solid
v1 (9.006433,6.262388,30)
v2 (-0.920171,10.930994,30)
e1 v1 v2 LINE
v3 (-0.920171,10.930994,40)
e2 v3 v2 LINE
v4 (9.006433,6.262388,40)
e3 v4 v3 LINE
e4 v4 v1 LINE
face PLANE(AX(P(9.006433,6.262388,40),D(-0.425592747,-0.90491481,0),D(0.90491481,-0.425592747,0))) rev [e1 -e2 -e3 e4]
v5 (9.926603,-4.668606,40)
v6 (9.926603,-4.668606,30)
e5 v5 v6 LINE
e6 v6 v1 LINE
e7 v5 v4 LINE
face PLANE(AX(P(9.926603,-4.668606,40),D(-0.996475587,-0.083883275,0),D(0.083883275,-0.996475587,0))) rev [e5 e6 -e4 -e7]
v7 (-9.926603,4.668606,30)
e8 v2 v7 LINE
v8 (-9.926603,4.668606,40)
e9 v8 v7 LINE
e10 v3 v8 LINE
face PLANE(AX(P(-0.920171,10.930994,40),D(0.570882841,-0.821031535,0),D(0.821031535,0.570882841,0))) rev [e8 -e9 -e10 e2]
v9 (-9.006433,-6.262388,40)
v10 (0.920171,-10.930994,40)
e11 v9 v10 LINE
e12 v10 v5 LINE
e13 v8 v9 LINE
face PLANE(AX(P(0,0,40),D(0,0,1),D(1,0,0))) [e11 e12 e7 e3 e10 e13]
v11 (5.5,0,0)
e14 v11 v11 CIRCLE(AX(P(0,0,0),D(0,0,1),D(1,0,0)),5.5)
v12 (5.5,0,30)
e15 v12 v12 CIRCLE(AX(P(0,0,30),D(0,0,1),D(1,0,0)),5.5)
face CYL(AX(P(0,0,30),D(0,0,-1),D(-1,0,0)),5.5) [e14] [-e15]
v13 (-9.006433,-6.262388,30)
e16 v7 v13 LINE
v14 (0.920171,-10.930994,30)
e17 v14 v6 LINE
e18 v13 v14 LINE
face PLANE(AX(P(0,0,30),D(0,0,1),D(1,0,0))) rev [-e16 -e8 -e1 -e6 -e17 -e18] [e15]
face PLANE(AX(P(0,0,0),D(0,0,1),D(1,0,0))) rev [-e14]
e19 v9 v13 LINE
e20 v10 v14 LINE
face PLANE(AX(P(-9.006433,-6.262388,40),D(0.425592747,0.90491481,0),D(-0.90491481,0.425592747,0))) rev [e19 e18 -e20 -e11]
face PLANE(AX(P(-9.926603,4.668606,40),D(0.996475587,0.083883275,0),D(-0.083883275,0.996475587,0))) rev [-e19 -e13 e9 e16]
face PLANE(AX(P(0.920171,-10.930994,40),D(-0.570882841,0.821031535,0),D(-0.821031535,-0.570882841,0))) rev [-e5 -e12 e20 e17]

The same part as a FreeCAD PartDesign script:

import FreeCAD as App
import Part
import Sketcher
Q = App.Units.Quantity

doc = App.newDocument("Part")
params = doc.addObject("Spreadsheet::Sheet", "Params")
for row, (alias, value) in enumerate([
    ("sketch1_diameter", "11 mm"),
    ("pad1_length", "30 mm"),
    ("pad2_length", "10 mm"),
], start=1):
    params.set(f"A{row}", alias)
    params.set(f"B{row}", "=" + value)
    params.setAlias(f"B{row}", alias)

body = doc.addObject("PartDesign::Body", "Body")

# Sketch on XY plane
sketch1 = body.newObject("Sketcher::SketchObject", "Sketch")
sketch1.AttachmentSupport = (doc.getObject("XY_Plane"), [""])
sketch1.MapMode = "FlatFace"
sketch1.addGeometry(Part.Circle(App.Vector(0, 0, 0), App.Vector(0, 0, 1), 6), False)
sketch1.addConstraint(Sketcher.Constraint("Coincident", 0, 3, -1, 1))
sketch1.addConstraint(Sketcher.Constraint("Diameter", 0, Q("11 mm")))
sketch1.setExpression("Constraints[1]", "Params.sketch1_diameter")
pad1 = body.newObject("PartDesign::Pad", "Pad")
pad1.Profile = sketch1
pad1.setExpression("Length", "Params.pad1_length")

# Sketch on XY plane
sketch2 = body.newObject("Sketcher::SketchObject", "Sketch001")
sketch2.AttachmentSupport = (doc.getObject("XY_Plane"), [""])
sketch2.MapMode = "FlatFace"
sketch2.AttachmentOffset = App.Placement(App.Vector(0, 0, 30), App.Rotation())
sketch2.addGeometry(Part.LineSegment(App.Vector(-10, 5, 0), App.Vector(-9, -6, 0)), False)
sketch2.addGeometry(Part.LineSegment(App.Vector(-9, -6, 0), App.Vector(1, -11, 0)), False)
sketch2.addGeometry(Part.LineSegment(App.Vector(1, -11, 0), App.Vector(10, -5, 0)), False)
sketch2.addGeometry(Part.LineSegment(App.Vector(10, -5, 0), App.Vector(9, 6, 0)), False)
sketch2.addGeometry(Part.LineSegment(App.Vector(9, 6, 0), App.Vector(-1, 11, 0)), False)
sketch2.addGeometry(Part.LineSegment(App.Vector(-1, 11, 0), App.Vector(-10, 5, 0)), False)
sketch2.addConstraint(Sketcher.Constraint("Coincident", 0, 2, 1, 1))
sketch2.addConstraint(Sketcher.Constraint("Coincident", 1, 2, 2, 1))
sketch2.addConstraint(Sketcher.Constraint("Coincident", 2, 2, 3, 1))
sketch2.addConstraint(Sketcher.Constraint("Coincident", 3, 2, 4, 1))
sketch2.addConstraint(Sketcher.Constraint("Coincident", 4, 2, 5, 1))
sketch2.addConstraint(Sketcher.Constraint("Coincident", 5, 2, 0, 1))
sketch2.addConstraint(Sketcher.Constraint("Symmetric", 0, 2, 3, 2, -1, 1))
sketch2.addConstraint(Sketcher.Constraint("Symmetric", 1, 2, 4, 2, -1, 1))
sketch2.addConstraint(Sketcher.Constraint("Symmetric", 2, 2, 5, 2, -1, 1))
sketch2.addConstraint(Sketcher.Constraint("Equal", 0, 1))
sketch2.addConstraint(Sketcher.Constraint("Equal", 1, 2))
sketch2.addConstraint(Sketcher.Constraint("DistanceY", 2, 2, 4, 2, Q("15.599599 mm")))
sketch2.addConstraint(Sketcher.Constraint("DistanceX", -1, 1, 1, 2, Q("0.920171 mm")))
sketch2.addConstraint(Sketcher.Constraint("DistanceX", 3, 2, 2, 2, Q("0.920171 mm")))
sketch2.addConstraint(Sketcher.Constraint("DistanceY", 1, 2, 3, 2, Q("17.193381 mm")))
pad2 = body.newObject("PartDesign::Pad", "Pad001")
pad2.Profile = sketch2
pad2.setExpression("Length", "Params.pad2_length")

doc.recompute()
